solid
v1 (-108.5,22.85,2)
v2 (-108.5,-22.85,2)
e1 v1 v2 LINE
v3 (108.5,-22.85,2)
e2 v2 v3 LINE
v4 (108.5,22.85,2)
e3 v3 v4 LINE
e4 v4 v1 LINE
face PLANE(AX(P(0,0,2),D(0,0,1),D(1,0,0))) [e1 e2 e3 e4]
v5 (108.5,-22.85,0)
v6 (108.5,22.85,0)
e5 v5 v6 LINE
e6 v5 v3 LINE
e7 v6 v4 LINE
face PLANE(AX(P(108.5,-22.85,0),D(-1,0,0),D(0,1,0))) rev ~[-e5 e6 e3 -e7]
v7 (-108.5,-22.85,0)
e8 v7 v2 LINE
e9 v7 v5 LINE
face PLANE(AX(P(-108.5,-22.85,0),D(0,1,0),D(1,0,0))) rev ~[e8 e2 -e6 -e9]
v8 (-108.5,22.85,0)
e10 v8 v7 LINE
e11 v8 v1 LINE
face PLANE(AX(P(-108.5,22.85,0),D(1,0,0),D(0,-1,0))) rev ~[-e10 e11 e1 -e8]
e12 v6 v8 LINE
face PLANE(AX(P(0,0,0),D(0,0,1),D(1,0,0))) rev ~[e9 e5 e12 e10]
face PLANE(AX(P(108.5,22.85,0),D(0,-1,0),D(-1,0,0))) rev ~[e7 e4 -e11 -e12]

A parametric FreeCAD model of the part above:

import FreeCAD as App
import Part
import Sketcher
from FreeCAD import Vector


def add_polygon(sketch, points):
    """Adds a closed chain of lines whose ends are joined by coincident constraints."""
    first, n = sketch.GeometryCount, len(points)
    for a, b in zip(points, points[1:] + points[:1]):
        sketch.addGeometry(Part.LineSegment(App.Vector(*a, 0), App.Vector(*b, 0)), False)
    for i in range(n):
        sketch.addConstraint(Sketcher.Constraint("Coincident", first + i, 2, first + (i + 1) % n, 1))

doc = App.newDocument("Part")
body = doc.addObject("PartDesign::Body", "Body")

sketch1 = doc.addObject("Sketcher::SketchObject", "Sketch")
body.addObject(sketch1)
sketch1.AttachmentSupport = (doc.XY_Plane, [""])
sketch1.MapMode = "FlatFace"
add_polygon(sketch1, [(108, -23), (108, 23), (-108, 23), (-108, -23)])
sketch1.addConstraint([
    Sketcher.Constraint("Vertical", 0),
    Sketcher.Constraint("Horizontal", 1),
    Sketcher.Constraint("Vertical", 2),
    Sketcher.Constraint("Horizontal", 3),
    Sketcher.Constraint("Symmetric", 0, 2, 2, 2, -1, 1),
    Sketcher.Constraint("DistanceX", 1, 2, 1, 1, 217.0),
    Sketcher.Constraint("DistanceY", 0, 1, 0, 2, 45.7),
])
pad1 = doc.addObject("PartDesign::Pad", "Pad")
body.addObject(pad1)
pad1.Profile = sketch1
pad1.Length = 2

doc.recompute()
